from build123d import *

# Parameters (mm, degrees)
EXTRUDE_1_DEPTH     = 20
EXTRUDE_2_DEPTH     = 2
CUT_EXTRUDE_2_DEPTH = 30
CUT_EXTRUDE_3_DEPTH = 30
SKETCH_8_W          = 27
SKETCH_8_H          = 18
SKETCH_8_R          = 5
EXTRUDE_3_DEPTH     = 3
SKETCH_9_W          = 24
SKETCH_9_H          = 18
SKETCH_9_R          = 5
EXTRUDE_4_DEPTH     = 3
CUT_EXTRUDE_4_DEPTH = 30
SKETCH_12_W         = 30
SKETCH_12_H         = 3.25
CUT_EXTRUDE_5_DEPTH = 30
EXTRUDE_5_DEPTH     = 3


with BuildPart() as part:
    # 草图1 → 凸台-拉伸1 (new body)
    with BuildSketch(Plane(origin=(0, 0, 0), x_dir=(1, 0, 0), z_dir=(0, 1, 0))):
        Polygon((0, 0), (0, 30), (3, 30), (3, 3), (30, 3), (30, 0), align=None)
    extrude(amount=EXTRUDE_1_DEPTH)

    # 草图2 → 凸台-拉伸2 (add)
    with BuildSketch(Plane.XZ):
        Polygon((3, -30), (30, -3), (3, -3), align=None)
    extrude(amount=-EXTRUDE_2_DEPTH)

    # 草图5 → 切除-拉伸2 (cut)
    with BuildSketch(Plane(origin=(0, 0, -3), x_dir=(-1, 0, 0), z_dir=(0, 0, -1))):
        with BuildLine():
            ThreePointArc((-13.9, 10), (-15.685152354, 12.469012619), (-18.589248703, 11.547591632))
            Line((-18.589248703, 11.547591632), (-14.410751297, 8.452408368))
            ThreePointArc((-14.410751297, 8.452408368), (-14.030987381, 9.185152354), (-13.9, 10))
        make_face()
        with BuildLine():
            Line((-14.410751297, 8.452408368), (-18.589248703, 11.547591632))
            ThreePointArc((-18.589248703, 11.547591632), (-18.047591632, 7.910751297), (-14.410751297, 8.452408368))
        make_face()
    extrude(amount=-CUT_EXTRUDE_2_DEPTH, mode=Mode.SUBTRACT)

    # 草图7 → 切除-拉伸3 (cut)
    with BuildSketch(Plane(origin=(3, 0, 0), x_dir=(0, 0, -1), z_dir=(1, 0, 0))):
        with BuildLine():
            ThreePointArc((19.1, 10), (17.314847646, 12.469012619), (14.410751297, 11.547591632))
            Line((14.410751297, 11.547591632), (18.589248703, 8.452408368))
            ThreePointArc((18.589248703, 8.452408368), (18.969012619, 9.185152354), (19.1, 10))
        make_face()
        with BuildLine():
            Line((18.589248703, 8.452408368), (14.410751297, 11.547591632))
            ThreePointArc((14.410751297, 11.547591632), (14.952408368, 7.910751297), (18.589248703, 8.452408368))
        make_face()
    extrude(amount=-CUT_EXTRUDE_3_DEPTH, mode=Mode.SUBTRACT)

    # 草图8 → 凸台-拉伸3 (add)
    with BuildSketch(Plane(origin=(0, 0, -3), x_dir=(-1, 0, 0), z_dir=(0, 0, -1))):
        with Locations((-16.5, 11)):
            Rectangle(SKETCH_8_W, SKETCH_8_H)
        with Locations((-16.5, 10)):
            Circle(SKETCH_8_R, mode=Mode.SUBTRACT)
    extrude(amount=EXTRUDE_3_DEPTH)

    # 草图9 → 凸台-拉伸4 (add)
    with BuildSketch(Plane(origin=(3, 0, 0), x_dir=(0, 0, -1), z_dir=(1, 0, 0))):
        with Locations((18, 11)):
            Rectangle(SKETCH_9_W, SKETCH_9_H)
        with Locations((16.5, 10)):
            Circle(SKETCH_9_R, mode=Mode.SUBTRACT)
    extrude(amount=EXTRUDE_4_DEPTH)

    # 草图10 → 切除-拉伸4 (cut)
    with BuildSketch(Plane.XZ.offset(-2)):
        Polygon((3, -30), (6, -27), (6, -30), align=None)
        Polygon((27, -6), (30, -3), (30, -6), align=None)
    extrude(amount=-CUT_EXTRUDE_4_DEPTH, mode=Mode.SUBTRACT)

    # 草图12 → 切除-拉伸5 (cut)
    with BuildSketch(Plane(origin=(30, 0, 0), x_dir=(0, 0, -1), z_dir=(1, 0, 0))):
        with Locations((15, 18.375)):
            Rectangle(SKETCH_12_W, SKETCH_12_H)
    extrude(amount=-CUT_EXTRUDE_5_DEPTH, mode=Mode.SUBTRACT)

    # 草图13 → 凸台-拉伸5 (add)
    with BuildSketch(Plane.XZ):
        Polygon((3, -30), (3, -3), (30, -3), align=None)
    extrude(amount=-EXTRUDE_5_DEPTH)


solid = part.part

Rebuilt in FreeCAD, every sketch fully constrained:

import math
import FreeCAD as App
import Part
import Sketcher

V = App.Vector
Q = App.Units.Quantity

doc = App.newDocument("Part")
params = doc.addObject("Spreadsheet::Sheet", "Params")
for row, (alias, value) in enumerate([
    ("sketch1_width", "30 mm"),
    ("sketch1_width2", "27 mm"),
    ("pad1_length", "20 mm"),
    ("sketch2_width", "27 mm"),
    ("pad2_length", "2 mm"),
    ("sketch3_radius", "2.6 mm"),
    ("pocket1_length", "30 mm"),
    ("sketch4_radius", "2.6 mm"),
    ("pocket2_length", "30 mm"),
    ("sketch5_diameter", "10 mm"),
    ("sketch5_width", "27 mm"),
    ("sketch5_height", "18 mm"),
    ("pad3_length", "3 mm"),
    ("sketch6_diameter", "10 mm"),
    ("sketch6_width", "18 mm"),
    ("sketch6_height", "24 mm"),
    ("pad4_length", "3 mm"),
    ("sketch7_width", "3 mm"),
    ("pocket3_length", "30 mm"),
    ("sketch8_height", "30 mm"),
    ("sketch8_width", "3.25 mm"),
    ("pocket4_length", "30 mm"),
    ("sketch9_width", "27 mm"),
    ("pad5_length", "3 mm"),
], start=1):
    params.set(f"A{row}", alias)
    params.set(f"B{row}", "=" + value)
    params.setAlias(f"B{row}", alias)

body = doc.addObject("PartDesign::Body", "Body")

# Sketch on XZ plane
sketch1 = body.newObject("Sketcher::SketchObject", "Sketch")
sketch1.AttachmentSupport = (doc.getObject("XZ_Plane"), [""])
sketch1.MapMode = "FlatFace"
sketch1.addGeometry(Part.LineSegment(V(0, -30, 0), V(0, 0, 0)), False)
sketch1.addGeometry(Part.LineSegment(V(0, 0, 0), V(30, 0, 0)), False)
sketch1.addGeometry(Part.LineSegment(V(30, 0, 0), V(30, -3, 0)), False)
sketch1.addGeometry(Part.LineSegment(V(30, -3, 0), V(3, -3, 0)), False)
sketch1.addGeometry(Part.LineSegment(V(3, -3, 0), V(3, -30, 0)), False)
sketch1.addGeometry(Part.LineSegment(V(3, -30, 0), V(0, -30, 0)), False)
sketch1.addConstraint(Sketcher.Constraint("Coincident", 0, 2, 1, 1))
sketch1.addConstraint(Sketcher.Constraint("Coincident", 1, 2, 2, 1))
sketch1.addConstraint(Sketcher.Constraint("Coincident", 2, 2, 3, 1))
sketch1.addConstraint(Sketcher.Constraint("Coincident", 3, 2, 4, 1))
sketch1.addConstraint(Sketcher.Constraint("Coincident", 4, 2, 5, 1))
sketch1.addConstraint(Sketcher.Constraint("Coincident", 5, 2, 0, 1))
sketch1.addConstraint(Sketcher.Constraint("Vertical", 0))
sketch1.addConstraint(Sketcher.Constraint("Horizontal", 1))
sketch1.addConstraint(Sketcher.Constraint("Vertical", 2))
sketch1.addConstraint(Sketcher.Constraint("Horizontal", 3))
sketch1.addConstraint(Sketcher.Constraint("Vertical", 4))
sketch1.addConstraint(Sketcher.Constraint("Horizontal", 5))
sketch1.addConstraint(Sketcher.Constraint("Coincident", 0, 2, -1, 1))
sketch1.addConstraint(Sketcher.Constraint("Equal", 1, 0))
sketch1.addConstraint(Sketcher.Constraint("Equal", 5, 2))
sketch1.addConstraint(Sketcher.Constraint("DistanceX", 1, 1, 1, 2, Q("30 mm")))
sketch1.addConstraint(Sketcher.Constraint("DistanceX", 3, 2, 3, 1, Q("27 mm")))
sketch1.setExpression("Constraints[15]", "Params.sketch1_width")
sketch1.setExpression("Constraints[16]", "Params.sketch1_width2")
pad1 = body.newObject("PartDesign::Pad", "Pad")
pad1.Profile = sketch1
pad1.setExpression("Length", "Params.pad1_length")
pad1.Reversed = True

# Sketch on XZ plane
sketch2 = body.newObject("Sketcher::SketchObject", "Sketch001")
sketch2.AttachmentSupport = (doc.getObject("XZ_Plane"), [""])
sketch2.MapMode = "FlatFace"
sketch2.addGeometry(Part.LineSegment(V(3, -30, 0), V(30, -3, 0)), False)
sketch2.addGeometry(Part.LineSegment(V(30, -3, 0), V(3, -3, 0)), False)
sketch2.addGeometry(Part.LineSegment(V(3, -3, 0), V(3, -30, 0)), False)
sketch2.addConstraint(Sketcher.Constraint("Coincident", 0, 2, 1, 1))
sketch2.addConstraint(Sketcher.Constraint("Coincident", 1, 2, 2, 1))
sketch2.addConstraint(Sketcher.Constraint("Coincident", 2, 2, 0, 1))
sketch2.addConstraint(Sketcher.Constraint("Horizontal", 1))
sketch2.addConstraint(Sketcher.Constraint("Vertical", 2))
sketch2.addConstraint(Sketcher.Constraint("Equal", 1, 2))
sketch2.addConstraint(Sketcher.Constraint("DistanceX", 1, 2, 1, 1, Q("27 mm")))
sketch2.addConstraint(Sketcher.Constraint("DistanceX", -1, 1, 0, 2, Q("30 mm")))
sketch2.addConstraint(Sketcher.Constraint("DistanceY", 0, 2, -1, 1, Q("3 mm")))
sketch2.setExpression("Constraints[6]", "Params.sketch2_width")
pad2 = body.newObject("PartDesign::Pad", "Pad001")
pad2.Profile = sketch2
pad2.setExpression("Length", "Params.pad2_length")
pad2.Reversed = True

# Sketch on XY plane
sketch3 = body.newObject("Sketcher::SketchObject", "Sketch002")
sketch3.AttachmentSupport = (doc.getObject("XY_Plane"), [""])
sketch3.MapMode = "FlatFace"
sketch3.AttachmentOffset = App.Placement(V(0, 0, -3), App.Rotation())
sketch3.addGeometry(Part.ArcOfCircle(Part.Circle(V(16.5, 10, 0), V(0, 0, 1), 2.6), math.radians(37), math.radians(180)), False)
sketch3.addGeometry(Part.ArcOfCircle(Part.Circle(V(16.5, 10, 0), V(0, 0, 1), 2.6), math.radians(-143), math.radians(37)), False)
sketch3.addGeometry(Part.ArcOfCircle(Part.Circle(V(16.5, 10, 0), V(0, 0, 1), 2.6), math.radians(-180), math.radians(-143)), False)
sketch3.addConstraint(Sketcher.Constraint("Tangent", 0, 1, 1, 2))
sketch3.addConstraint(Sketcher.Constraint("Tangent", 1, 1, 2, 2))
sketch3.addConstraint(Sketcher.Constraint("Tangent", 2, 1, 0, 2))
sketch3.addConstraint(Sketcher.Constraint("Horizontal", 1, 3, 2, 1))
sketch3.addConstraint(Sketcher.Constraint("Radius", 0, Q("2.6 mm")))
sketch3.addConstraint(Sketcher.Constraint("DistanceY", -1, 1, 0, 3, Q("10 mm")))
sketch3.addConstraint(Sketcher.Constraint("DistanceX", -1, 1, 0, 3, Q("16.5 mm")))
sketch3.addConstraint(Sketcher.Constraint("DistanceX", -1, 1, 0, 1, Q("18.589249 mm")))
sketch3.addConstraint(Sketcher.Constraint("DistanceX", -1, 1, 1, 1, Q("14.410751 mm")))
sketch3.setExpression("Constraints[4]", "Params.sketch3_radius")
pocket1 = body.newObject("PartDesign::Pocket", "Pocket")
pocket1.Profile = sketch3
pocket1.setExpression("Length", "Params.pocket1_length")
pocket1.Reversed = True

# Sketch on YZ plane
sketch4 = body.newObject("Sketcher::SketchObject", "Sketch003")
sketch4.AttachmentSupport = (doc.getObject("YZ_Plane"), [""])
sketch4.MapMode = "FlatFace"
sketch4.AttachmentOffset = App.Placement(V(0, 0, 3), App.Rotation())
sketch4.addGeometry(Part.ArcOfCircle(Part.Circle(V(10, -16.5, 0), V(0, 0, 1), 2.6), math.radians(-90), math.radians(53)), False)
sketch4.addGeometry(Part.ArcOfCircle(Part.Circle(V(10, -16.5, 0), V(0, 0, 1), 2.6), math.radians(53), math.radians(233)), False)
sketch4.addGeometry(Part.ArcOfCircle(Part.Circle(V(10, -16.5, 0), V(0, 0, 1), 2.6), math.radians(-127), math.radians(-90)), False)
sketch4.addConstraint(Sketcher.Constraint("Tangent", 0, 2, 1, 1))
sketch4.addConstraint(Sketcher.Constraint("Tangent", 1, 2, 2, 1))
sketch4.addConstraint(Sketcher.Constraint("Tangent", 2, 2, 0, 1))
sketch4.addConstraint(Sketcher.Constraint("Vertical", 1, 3, 2, 2))
sketch4.addConstraint(Sketcher.Constraint("Radius", 0, Q("2.6 mm")))
sketch4.addConstraint(Sketcher.Constraint("DistanceX", -1, 1, 0, 3, Q("10 mm")))
sketch4.addConstraint(Sketcher.Constraint("DistanceY", 0, 3, -1, 1, Q("16.5 mm")))
sketch4.addConstraint(Sketcher.Constraint("DistanceX", -1, 1, 0, 2, Q("11.547592 mm")))
sketch4.addConstraint(Sketcher.Constraint("DistanceX", -1, 1, 1, 2, Q("8.452408 mm")))
sketch4.setExpression("Constraints[4]", "Params.sketch4_radius")
pocket2 = body.newObject("PartDesign::Pocket", "Pocket001")
pocket2.Profile = sketch4
pocket2.setExpression("Length", "Params.pocket2_length")

# Sketch on XY plane
sketch5 = body.newObject("Sketcher::SketchObject", "Sketch004")
sketch5.AttachmentSupport = (doc.getObject("XY_Plane"), [""])
sketch5.MapMode = "FlatFace"
sketch5.AttachmentOffset = App.Placement(V(0, 0, -3), App.Rotation())
sketch5.addGeometry(Part.LineSegment(V(30, 20, 0), V(30, 2, 0)), False)
sketch5.addGeometry(Part.LineSegment(V(30, 2, 0), V(3, 2, 0)), False)
sketch5.addGeometry(Part.LineSegment(V(3, 2, 0), V(3, 20, 0)), False)
sketch5.addGeometry(Part.LineSegment(V(3, 20, 0), V(30, 20, 0)), False)
sketch5.addGeometry(Part.Circle(V(16, 10, 0), V(0, 0, 1), 5), False)
sketch5.addConstraint(Sketcher.Constraint("Coincident", 0, 2, 1, 1))
sketch5.addConstraint(Sketcher.Constraint("Coincident", 1, 2, 2, 1))
sketch5.addConstraint(Sketcher.Constraint("Coincident", 2, 2, 3, 1))
sketch5.addConstraint(Sketcher.Constraint("Coincident", 3, 2, 0, 1))
sketch5.addConstraint(Sketcher.Constraint("Vertical", 0))
sketch5.addConstraint(Sketcher.Constraint("Horizontal", 1))
sketch5.addConstraint(Sketcher.Constraint("Vertical", 2))
sketch5.addConstraint(Sketcher.Constraint("Horizontal", 3))
sketch5.addConstraint(Sketcher.Constraint("Diameter", 4, Q("10 mm")))
sketch5.addConstraint(Sketcher.Constraint("DistanceX", 1, 2, 1, 1, Q("27 mm")))
sketch5.addConstraint(Sketcher.Constraint("DistanceY", 0, 2, 0, 1, Q("18 mm")))
sketch5.addConstraint(Sketcher.Constraint("DistanceY", -1, 1, 4, 3, Q("10 mm")))
sketch5.addConstraint(Sketcher.Constraint("DistanceX", -1, 1, 0, 2, Q("30 mm")))
sketch5.addConstraint(Sketcher.Constraint("DistanceY", -1, 1, 0, 2, Q("2 mm")))
sketch5.addConstraint(Sketcher.Constraint("DistanceX", -1, 1, 4, 3, Q("16.5 mm")))
sketch5.setExpression("Constraints[8]", "Params.sketch5_diameter")
sketch5.setExpression("Constraints[9]", "Params.sketch5_width")
sketch5.setExpression("Constraints[10]", "Params.sketch5_height")
pad3 = body.newObject("PartDesign::Pad", "Pad002")
pad3.Profile = sketch5
pad3.setExpression("Length", "Params.pad3_length")
pad3.Reversed = True

# Sketch on YZ plane
sketch6 = body.newObject("Sketcher::SketchObject", "Sketch005")
sketch6.AttachmentSupport = (doc.getObject("YZ_Plane"), [""])
sketch6.MapMode = "FlatFace"
sketch6.AttachmentOffset = App.Placement(V(0, 0, 3), App.Rotation())
sketch6.addGeometry(Part.LineSegment(V(20, -6, 0), V(2, -6, 0)), False)
sketch6.addGeometry(Part.LineSegment(V(2, -6, 0), V(2, -30, 0)), False)
sketch6.addGeometry(Part.LineSegment(V(2, -30, 0), V(20, -30, 0)), False)
sketch6.addGeometry(Part.LineSegment(V(20, -30, 0), V(20, -6, 0)), False)
sketch6.addGeometry(Part.Circle(V(10, -16, 0), V(0, 0, 1), 5), False)
sketch6.addConstraint(Sketcher.Constraint("Coincident", 0, 2, 1, 1))
sketch6.addConstraint(Sketcher.Constraint("Coincident", 1, 2, 2, 1))
sketch6.addConstraint(Sketcher.Constraint("Coincident", 2, 2, 3, 1))
sketch6.addConstraint(Sketcher.Constraint("Coincident", 3, 2, 0, 1))
sketch6.addConstraint(Sketcher.Constraint("Horizontal", 0))
sketch6.addConstraint(Sketcher.Constraint("Vertical", 1))
sketch6.addConstraint(Sketcher.Constraint("Horizontal", 2))
sketch6.addConstraint(Sketcher.Constraint("Vertical", 3))
sketch6.addConstraint(Sketcher.Constraint("Diameter", 4, Q("10 mm")))
sketch6.addConstraint(Sketcher.Constraint("DistanceX", 0, 2, 0, 1, Q("18 mm")))
sketch6.addConstraint(Sketcher.Constraint("DistanceY", 1, 2, 1, 1, Q("24 mm")))
sketch6.addConstraint(Sketcher.Constraint("DistanceX", -1, 1, 4, 3, Q("10 mm")))
sketch6.addConstraint(Sketcher.Constraint("DistanceX", -1, 1, 0, 2, Q("2 mm")))
sketch6.addConstraint(Sketcher.Constraint("DistanceY", 0, 2, -1, 1, Q("6 mm")))
sketch6.addConstraint(Sketcher.Constraint("DistanceY", 4, 3, -1, 1, Q("16.5 mm")))
sketch6.setExpression("Constraints[8]", "Params.sketch6_diameter")
sketch6.setExpression("Constraints[9]", "Params.sketch6_width")
sketch6.setExpression("Constraints[10]", "Params.sketch6_height")
pad4 = body.newObject("PartDesign::Pad", "Pad003")
pad4.Profile = sketch6
pad4.setExpression("Length", "Params.pad4_length")

# Sketch on XZ plane
sketch7 = body.newObject("Sketcher::SketchObject", "Sketch006")
sketch7.AttachmentSupport = (doc.getObject("XZ_Plane"), [""])
sketch7.MapMode = "FlatFace"
sketch7.AttachmentOffset = App.Placement(V(0, 0, -2), App.Rotation())
sketch7.addGeometry(Part.LineSegment(V(6, -27, 0), V(3, -30, 0)), False)
sketch7.addGeometry(Part.LineSegment(V(3, -30, 0), V(6, -30, 0)), False)
sketch7.addGeometry(Part.LineSegment(V(6, -30, 0), V(6, -27, 0)), False)
sketch7.addGeometry(Part.LineSegment(V(30, -3, 0), V(27, -6, 0)), False)
sketch7.addGeometry(Part.LineSegment(V(27, -6, 0), V(30, -6, 0)), False)
sketch7.addGeometry(Part.LineSegment(V(30, -6, 0), V(30, -3, 0)), False)
sketch7.addConstraint(Sketcher.Constraint("Coincident", 0, 2, 1, 1))
sketch7.addConstraint(Sketcher.Constraint("Coincident", 1, 2, 2, 1))
sketch7.addConstraint(Sketcher.Constraint("Coincident", 2, 2, 0, 1))
sketch7.addConstraint(Sketcher.Constraint("Coincident", 3, 2, 4, 1))
sketch7.addConstraint(Sketcher.Constraint("Coincident", 4, 2, 5, 1))
sketch7.addConstraint(Sketcher.Constraint("Coincident", 5, 2, 3, 1))
sketch7.addConstraint(Sketcher.Constraint("Horizontal", 1))
sketch7.addConstraint(Sketcher.Constraint("Vertical", 2))
sketch7.addConstraint(Sketcher.Constraint("Horizontal", 4))
sketch7.addConstraint(Sketcher.Constraint("Vertical", 5))
sketch7.addConstraint(Sketcher.Constraint("Parallel", 0, 3))
sketch7.addConstraint(Sketcher.Constraint("Equal", 1, 4))
sketch7.addConstraint(Sketcher.Constraint("Equal", 4, 2))
sketch7.addConstraint(Sketcher.Constraint("DistanceX", 1, 1, 1, 2, Q("3 mm")))
sketch7.addConstraint(Sketcher.Constraint("DistanceX", -1, 1, 0, 2, Q("3 mm")))
sketch7.addConstraint(Sketcher.Constraint("DistanceY", 0, 2, -1, 1, Q("30 mm")))
sketch7.addConstraint(Sketcher.Constraint("DistanceX", -1, 1, 3, 2, Q("27 mm")))
sketch7.addConstraint(Sketcher.Constraint("DistanceY", 3, 2, -1, 1, Q("6 mm")))
sketch7.setExpression("Constraints[13]", "Params.sketch7_width")
pocket3 = body.newObject("PartDesign::Pocket", "Pocket002")
pocket3.Profile = sketch7
pocket3.setExpression("Length", "Params.pocket3_length")

# Sketch on YZ plane
sketch8 = body.newObject("Sketcher::SketchObject", "Sketch007")
sketch8.AttachmentSupport = (doc.getObject("YZ_Plane"), [""])
sketch8.MapMode = "FlatFace"
sketch8.AttachmentOffset = App.Placement(V(0, 0, 30), App.Rotation())
sketch8.addGeometry(Part.LineSegment(V(20, 0, 0), V(16.8, 0, 0)), False)
sketch8.addGeometry(Part.LineSegment(V(16.8, 0, 0), V(16.8, -30, 0)), False)
sketch8.addGeometry(Part.LineSegment(V(16.8, -30, 0), V(20, -30, 0)), False)
sketch8.addGeometry(Part.LineSegment(V(20, -30, 0), V(20, 0, 0)), False)
sketch8.addConstraint(Sketcher.Constraint("Coincident", 0, 2, 1, 1))
sketch8.addConstraint(Sketcher.Constraint("Coincident", 1, 2, 2, 1))
sketch8.addConstraint(Sketcher.Constraint("Coincident", 2, 2, 3, 1))
sketch8.addConstraint(Sketcher.Constraint("Coincident", 3, 2, 0, 1))
sketch8.addConstraint(Sketcher.Constraint("Horizontal", 0))
sketch8.addConstraint(Sketcher.Constraint("Vertical", 1))
sketch8.addConstraint(Sketcher.Constraint("Horizontal", 2))
sketch8.addConstraint(Sketcher.Constraint("Vertical", 3))
sketch8.addConstraint(Sketcher.Constraint("PointOnObject", 0, 2, -1))
sketch8.addConstraint(Sketcher.Constraint("DistanceY", 1, 2, 1, 1, Q("30 mm")))
sketch8.addConstraint(Sketcher.Constraint("DistanceX", -1, 1, 2, 2, Q("20 mm")))
sketch8.addConstraint(Sketcher.Constraint("DistanceX", 0, 2, 0, 1, Q("3.25 mm")))
sketch8.setExpression("Constraints[9]", "Params.sketch8_height")
sketch8.setExpression("Constraints[11]", "Params.sketch8_width")
pocket4 = body.newObject("PartDesign::Pocket", "Pocket003")
pocket4.Profile = sketch8
pocket4.setExpression("Length", "Params.pocket4_length")

# Sketch on XZ plane
sketch9 = body.newObject("Sketcher::SketchObject", "Sketch008")
sketch9.AttachmentSupport = (doc.getObject("XZ_Plane"), [""])
sketch9.MapMode = "FlatFace"
sketch9.addGeometry(Part.LineSegment(V(3, -3, 0), V(3, -30, 0)), False)
sketch9.addGeometry(Part.LineSegment(V(3, -30, 0), V(30, -3, 0)), False)
sketch9.addGeometry(Part.LineSegment(V(30, -3, 0), V(3, -3, 0)), False)
sketch9.addConstraint(Sketcher.Constraint("Coincident", 0, 2, 1, 1))
sketch9.addConstraint(Sketcher.Constraint("Coincident", 1, 2, 2, 1))
sketch9.addConstraint(Sketcher.Constraint("Coincident", 2, 2, 0, 1))
sketch9.addConstraint(Sketcher.Constraint("Vertical", 0))
sketch9.addConstraint(Sketcher.Constraint("Horizontal", 2))
sketch9.addConstraint(Sketcher.Constraint("Equal", 2, 0))
sketch9.addConstraint(Sketcher.Constraint("DistanceX", 2, 2, 2, 1, Q("27 mm")))
sketch9.addConstraint(Sketcher.Constraint("DistanceX", -1, 1, 0, 2, Q("3 mm")))
sketch9.addConstraint(Sketcher.Constraint("DistanceY", 0, 2, -1, 1, Q("30 mm")))
sketch9.setExpression("Constraints[6]", "Params.sketch9_width")
pad5 = body.newObject("PartDesign::Pad", "Pad004")
pad5.Profile = sketch9
pad5.setExpression("Length", "Params.pad5_length")
pad5.Reversed = True

doc.recompute()
